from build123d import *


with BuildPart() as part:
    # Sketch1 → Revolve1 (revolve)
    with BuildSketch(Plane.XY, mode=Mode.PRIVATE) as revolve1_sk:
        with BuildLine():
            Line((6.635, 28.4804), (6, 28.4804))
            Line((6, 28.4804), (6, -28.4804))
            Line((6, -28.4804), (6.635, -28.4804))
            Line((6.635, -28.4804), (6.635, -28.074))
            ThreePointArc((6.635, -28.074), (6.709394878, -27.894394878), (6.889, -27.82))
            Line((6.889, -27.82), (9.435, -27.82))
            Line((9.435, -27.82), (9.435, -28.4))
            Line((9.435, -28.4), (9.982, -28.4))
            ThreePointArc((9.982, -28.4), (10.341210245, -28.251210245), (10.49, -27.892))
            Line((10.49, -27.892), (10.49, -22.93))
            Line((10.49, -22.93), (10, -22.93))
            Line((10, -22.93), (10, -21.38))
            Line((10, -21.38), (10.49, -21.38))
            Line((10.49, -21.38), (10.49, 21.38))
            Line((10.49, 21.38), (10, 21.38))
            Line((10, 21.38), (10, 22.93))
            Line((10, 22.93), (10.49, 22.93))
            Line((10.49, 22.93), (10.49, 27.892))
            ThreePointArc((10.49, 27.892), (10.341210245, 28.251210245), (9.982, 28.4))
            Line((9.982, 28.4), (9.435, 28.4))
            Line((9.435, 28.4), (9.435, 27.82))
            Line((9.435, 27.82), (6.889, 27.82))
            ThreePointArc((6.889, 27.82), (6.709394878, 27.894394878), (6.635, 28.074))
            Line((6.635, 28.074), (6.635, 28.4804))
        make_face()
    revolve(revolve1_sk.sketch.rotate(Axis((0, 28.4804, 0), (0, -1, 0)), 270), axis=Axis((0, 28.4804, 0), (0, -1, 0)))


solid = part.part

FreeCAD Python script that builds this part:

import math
import FreeCAD as App
import Part
import Sketcher

V = App.Vector
Q = App.Units.Quantity

doc = App.newDocument("Part")
body = doc.addObject("PartDesign::Body", "Body")

# Sketch on XY plane
sketch1 = body.newObject("Sketcher::SketchObject", "Sketch")
sketch1.AttachmentSupport = (doc.getObject("XY_Plane"), [""])
sketch1.MapMode = "FlatFace"
sketch1.addGeometry([
    Part.LineSegment(V(6.63, 28.48, 0), V(6, 28.48, 0)),  # 0
    Part.LineSegment(V(6, 28.48, 0), V(6, -28.48, 0)),  # 1
    Part.LineSegment(V(6, -28.48, 0), V(6.63, -28.48, 0)),  # 2
    Part.LineSegment(V(6.63, -28.48, 0), V(6.63, -28.07, 0)),  # 3
    Part.ArcOfCircle(Part.Circle(V(6.89, -28.07, 0), V(0, 0, 1), 0.25), math.radians(90), math.radians(180)),  # 4
    Part.LineSegment(V(6.89, -27.82, 0), V(9.44, -27.82, 0)),  # 5
    Part.LineSegment(V(9.44, -27.82, 0), V(9.44, -28.4, 0)),  # 6
    Part.LineSegment(V(9.44, -28.4, 0), V(9.98, -28.4, 0)),  # 7
    Part.ArcOfCircle(Part.Circle(V(9.98, -27.89, 0), V(0, 0, 1), 0.51), math.radians(-90), math.radians(0)),  # 8
    Part.LineSegment(V(10.49, -27.89, 0), V(10.49, -22.93, 0)),  # 9
    Part.LineSegment(V(10.49, -22.93, 0), V(10, -22.93, 0)),  # 10
    Part.LineSegment(V(10, -22.93, 0), V(10, -21.38, 0)),  # 11
    Part.LineSegment(V(10, -21.38, 0), V(10.49, -21.38, 0)),  # 12
    Part.LineSegment(V(10.49, -21.38, 0), V(10.49, 21.38, 0)),  # 13
    Part.LineSegment(V(10.49, 21.38, 0), V(10, 21.38, 0)),  # 14
    Part.LineSegment(V(10, 21.38, 0), V(10, 22.93, 0)),  # 15
    Part.LineSegment(V(10, 22.93, 0), V(10.49, 22.93, 0)),  # 16
    Part.LineSegment(V(10.49, 22.93, 0), V(10.49, 27.89, 0)),  # 17
    Part.ArcOfCircle(Part.Circle(V(9.98, 27.89, 0), V(0, 0, 1), 0.51), math.radians(0), math.radians(90)),  # 18
    Part.LineSegment(V(9.98, 28.4, 0), V(9.44, 28.4, 0)),  # 19
    Part.LineSegment(V(9.44, 28.4, 0), V(9.44, 27.82, 0)),  # 20
    Part.LineSegment(V(9.44, 27.82, 0), V(6.89, 27.82, 0)),  # 21
    Part.ArcOfCircle(Part.Circle(V(6.89, 28.07, 0), V(0, 0, 1), 0.25), math.radians(-180), math.radians(-90)),  # 22
    Part.LineSegment(V(6.63, 28.07, 0), V(6.63, 28.48, 0)),  # 23
], False)
sketch1.addConstraint([
    Sketcher.Constraint("Coincident", 0, 2, 1, 1),
    Sketcher.Constraint("Coincident", 1, 2, 2, 1),
    Sketcher.Constraint("Coincident", 2, 2, 3, 1),
    Sketcher.Constraint("Tangent", 3, 2, 4, 2),
    Sketcher.Constraint("Tangent", 4, 1, 5, 1),
    Sketcher.Constraint("Coincident", 5, 2, 6, 1),
    Sketcher.Constraint("Coincident", 6, 2, 7, 1),
    Sketcher.Constraint("Tangent", 7, 2, 8, 1),
    Sketcher.Constraint("Tangent", 8, 2, 9, 1),
    Sketcher.Constraint("Coincident", 9, 2, 10, 1),
    Sketcher.Constraint("Coincident", 10, 2, 11, 1),
    Sketcher.Constraint("Coincident", 11, 2, 12, 1),
    Sketcher.Constraint("Coincident", 12, 2, 13, 1),
    Sketcher.Constraint("Coincident", 13, 2, 14, 1),
    Sketcher.Constraint("Coincident", 14, 2, 15, 1),
    Sketcher.Constraint("Coincident", 15, 2, 16, 1),
    Sketcher.Constraint("Coincident", 16, 2, 17, 1),
    Sketcher.Constraint("Tangent", 17, 2, 18, 1),
    Sketcher.Constraint("Tangent", 18, 2, 19, 1),
    Sketcher.Constraint("Coincident", 19, 2, 20, 1),
    Sketcher.Constraint("Coincident", 20, 2, 21, 1),
    Sketcher.Constraint("Tangent", 21, 2, 22, 2),
    Sketcher.Constraint("Tangent", 22, 1, 23, 1),
    Sketcher.Constraint("Coincident", 23, 2, 0, 1),
    Sketcher.Constraint("Horizontal", 0),
    Sketcher.Constraint("Vertical", 1),
    Sketcher.Constraint("Horizontal", 2),
    Sketcher.Constraint("Vertical", 3),
    Sketcher.Constraint("Horizontal", 5),
    Sketcher.Constraint("Vertical", 6),
    Sketcher.Constraint("Horizontal", 7),
    Sketcher.Constraint("Vertical", 9),
    Sketcher.Constraint("Horizontal", 10),
    Sketcher.Constraint("Vertical", 11),
    Sketcher.Constraint("Horizontal", 12),
    Sketcher.Constraint("Vertical", 13),
    Sketcher.Constraint("Horizontal", 14),
    Sketcher.Constraint("Vertical", 15),
    Sketcher.Constraint("Horizontal", 16),
    Sketcher.Constraint("Vertical", 17),
    Sketcher.Constraint("Horizontal", 19),
    Sketcher.Constraint("Vertical", 20),
    Sketcher.Constraint("Horizontal", 21),
    Sketcher.Constraint("Vertical", 23),
    Sketcher.Constraint("Equal", 8, 18),
    Sketcher.Constraint("Equal", 4, 22),
    Sketcher.Constraint("Symmetric", 8, 3, 18, 3, -1),
    Sketcher.Constraint("Symmetric", 4, 3, 22, 3, -1),
    Sketcher.Constraint("Symmetric", 11, 2, 14, 2, -1),
    Sketcher.Constraint("Vertical", 9, 2, 12, 2),
    Sketcher.Constraint("Vertical", 6, 2, 19, 2),
    Sketcher.Constraint("Equal", 11, 15),
    Sketcher.Constraint("Equal", 3, 23),
    Sketcher.Constraint("Radius", 4, Q("0.01 in")),
    Sketcher.Constraint("Radius", 8, Q("0.02 in")),
    Sketcher.Constraint("DistanceX", 0, 2, 0, 1, Q("0.025 in")),
    Sketcher.Constraint("DistanceY", 3, 1, 3, 2, Q("0.016 in")),
    Sketcher.Constraint("DistanceX", 5, 1, 5, 2, 2.546),
    Sketcher.Constraint("DistanceX", 7, 1, 7, 2, 0.547),
    Sketcher.Constraint("DistanceX", 10, 2, 10, 1, 0.49),
    Sketcher.Constraint("DistanceY", 1, 2, 1, 1, 56.9608),
    Sketcher.Constraint("DistanceY", 6, 2, 6, 1, 0.58),
    Sketcher.Constraint("DistanceY", 9, 1, 9, 2, 4.962),
    Sketcher.Constraint("DistanceY", 11, 1, 11, 2, 1.55),
    Sketcher.Constraint("DistanceX", -1, 1, 4, 3, 6.889),
])
revolution = body.newObject("PartDesign::Revolution", "Revolution")
revolution.Profile = sketch1
revolution.ReferenceAxis = (sketch1, ["V_Axis"])
revolution.Angle = 360

doc.recompute()
